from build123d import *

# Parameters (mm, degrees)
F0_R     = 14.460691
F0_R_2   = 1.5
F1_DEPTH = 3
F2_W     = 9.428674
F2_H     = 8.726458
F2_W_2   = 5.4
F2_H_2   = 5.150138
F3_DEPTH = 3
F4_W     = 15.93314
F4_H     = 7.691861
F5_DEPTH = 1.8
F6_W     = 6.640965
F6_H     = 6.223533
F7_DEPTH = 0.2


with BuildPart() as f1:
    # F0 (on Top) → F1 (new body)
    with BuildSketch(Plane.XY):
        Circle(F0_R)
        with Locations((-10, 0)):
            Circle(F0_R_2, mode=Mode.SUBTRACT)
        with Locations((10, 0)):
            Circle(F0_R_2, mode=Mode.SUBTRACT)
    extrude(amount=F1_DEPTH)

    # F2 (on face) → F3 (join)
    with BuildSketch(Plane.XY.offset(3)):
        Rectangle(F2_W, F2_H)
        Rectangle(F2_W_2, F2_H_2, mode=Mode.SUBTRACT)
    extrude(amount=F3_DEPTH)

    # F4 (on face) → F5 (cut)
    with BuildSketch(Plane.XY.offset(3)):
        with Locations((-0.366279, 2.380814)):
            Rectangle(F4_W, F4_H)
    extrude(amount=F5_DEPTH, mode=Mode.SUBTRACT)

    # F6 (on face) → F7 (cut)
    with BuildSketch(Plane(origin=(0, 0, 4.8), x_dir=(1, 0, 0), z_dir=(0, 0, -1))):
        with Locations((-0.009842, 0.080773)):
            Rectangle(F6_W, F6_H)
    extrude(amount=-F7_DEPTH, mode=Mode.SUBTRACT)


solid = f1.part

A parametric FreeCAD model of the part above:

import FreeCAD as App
import Part
import Sketcher

V = App.Vector
Q = App.Units.Quantity

doc = App.newDocument("Part")
params = doc.addObject("Spreadsheet::Sheet", "Params")
for row, (alias, value) in enumerate([
    ("sketch1_diameter", "3 mm"),
    ("pad1_length", "3 mm"),
    ("sketch2_width", "5.4 mm"),
    ("pad2_length", "3 mm"),
    ("pocket1_length", "1.8 mm"),
    ("pocket2_length", "0.2 mm"),
], start=1):
    params.set(f"A{row}", alias)
    params.set(f"B{row}", "=" + value)
    params.setAlias(f"B{row}", alias)

body = doc.addObject("PartDesign::Body", "Body")

# Sketch on XY plane
sketch1 = doc.addObject("Sketcher::SketchObject", "Sketch")
body.addObject(sketch1)
sketch1.AttachmentSupport = (doc.XY_Plane, [""])
sketch1.MapMode = "FlatFace"
sketch1.addGeometry([
    Part.Circle(V(0, 0, 0), V(0, 0, 1), 14.5),
    Part.Circle(V(-10, 0, 0), V(0, 0, 1), 1.5),
    Part.Circle(V(10, 0, 0), V(0, 0, 1), 1.5),
], False)
sketch1.addConstraint([
    Sketcher.Constraint("Coincident", 0, 3, -1, 1),
    Sketcher.Constraint("Equal", 1, 2),
    Sketcher.Constraint("Symmetric", 1, 3, 2, 3, -1, 1),
    Sketcher.Constraint("PointOnObject", 1, 3, -1),
    Sketcher.Constraint("Diameter", 1, Q("3 mm")),
    Sketcher.Constraint("DistanceX", 1, 3, -1, 1, Q("10 mm")),
    Sketcher.Constraint("Diameter", 0, Q("28.921382 mm")),
])
sketch1.setExpression("Constraints[4]", "Params.sketch1_diameter")
pad1 = doc.addObject("PartDesign::Pad", "Pad")
body.addObject(pad1)
pad1.Profile = sketch1
pad1.setExpression("Length", "Params.pad1_length")

# Sketch on XY plane
sketch2 = doc.addObject("Sketcher::SketchObject", "Sketch001")
body.addObject(sketch2)
sketch2.AttachmentSupport = (doc.XY_Plane, [""])
sketch2.MapMode = "FlatFace"
sketch2.AttachmentOffset = App.Placement(V(0, 0, 3), App.Rotation())
sketch2.addGeometry([
    Part.LineSegment(V(-5, 4, 0), V(-5, -4, 0)),  # 0
    Part.LineSegment(V(-5, -4, 0), V(5, -4, 0)),  # 1
    Part.LineSegment(V(5, -4, 0), V(5, 4, 0)),  # 2
    Part.LineSegment(V(5, 4, 0), V(-5, 4, 0)),  # 3
    Part.LineSegment(V(3, -3, 0), V(-3, -3, 0)),  # 4
    Part.LineSegment(V(-3, -3, 0), V(-3, 3, 0)),  # 5
    Part.LineSegment(V(-3, 3, 0), V(3, 3, 0)),  # 6
    Part.LineSegment(V(3, 3, 0), V(3, -3, 0)),  # 7
], False)
sketch2.addConstraint([
    Sketcher.Constraint("Coincident", 0, 2, 1, 1),
    Sketcher.Constraint("Coincident", 1, 2, 2, 1),
    Sketcher.Constraint("Coincident", 2, 2, 3, 1),
    Sketcher.Constraint("Coincident", 3, 2, 0, 1),
    Sketcher.Constraint("Coincident", 4, 2, 5, 1),
    Sketcher.Constraint("Coincident", 5, 2, 6, 1),
    Sketcher.Constraint("Coincident", 6, 2, 7, 1),
    Sketcher.Constraint("Coincident", 7, 2, 4, 1),
    Sketcher.Constraint("Vertical", 0),
    Sketcher.Constraint("Horizontal", 1),
    Sketcher.Constraint("Vertical", 2),
    Sketcher.Constraint("Horizontal", 3),
    Sketcher.Constraint("Horizontal", 4),
    Sketcher.Constraint("Vertical", 5),
    Sketcher.Constraint("Horizontal", 6),
    Sketcher.Constraint("Vertical", 7),
    Sketcher.Constraint("Symmetric", 0, 2, 2, 2, -1, 1),
    Sketcher.Constraint("Symmetric", 4, 2, 6, 2, -1, 1),
    Sketcher.Constraint("DistanceX", 4, 2, 4, 1, Q("5.4 mm")),
    Sketcher.Constraint("DistanceX", 1, 1, 1, 2, Q("9.428674 mm")),
    Sketcher.Constraint("DistanceY", 0, 2, 0, 1, Q("8.726458 mm")),
    Sketcher.Constraint("DistanceY", 5, 1, 5, 2, Q("5.150138 mm")),
])
sketch2.setExpression("Constraints[18]", "Params.sketch2_width")
pad2 = doc.addObject("PartDesign::Pad", "Pad001")
body.addObject(pad2)
pad2.Profile = sketch2
pad2.setExpression("Length", "Params.pad2_length")

# Sketch on XY plane
sketch3 = doc.addObject("Sketcher::SketchObject", "Sketch002")
body.addObject(sketch3)
sketch3.AttachmentSupport = (doc.XY_Plane, [""])
sketch3.MapMode = "FlatFace"
sketch3.AttachmentOffset = App.Placement(V(0, 0, 3), App.Rotation())
sketch3.addGeometry([
    Part.LineSegment(V(-8, 6, 0), V(-8, -1, 0)),
    Part.LineSegment(V(-8, -1, 0), V(8, -1, 0)),
    Part.LineSegment(V(8, -1, 0), V(8, 6, 0)),
    Part.LineSegment(V(8, 6, 0), V(-8, 6, 0)),
], False)
sketch3.addConstraint([
    Sketcher.Constraint("Coincident", 0, 2, 1, 1),
    Sketcher.Constraint("Coincident", 1, 2, 2, 1),
    Sketcher.Constraint("Coincident", 2, 2, 3, 1),
    Sketcher.Constraint("Coincident", 3, 2, 0, 1),
    Sketcher.Constraint("Vertical", 0),
    Sketcher.Constraint("Horizontal", 1),
    Sketcher.Constraint("Vertical", 2),
    Sketcher.Constraint("Horizontal", 3),
    Sketcher.Constraint("DistanceX", 1, 1, 1, 2, Q("15.93314 mm")),
    Sketcher.Constraint("DistanceY", 0, 2, 0, 1, Q("7.691861 mm")),
    Sketcher.Constraint("DistanceX", 0, 2, -1, 1, Q("8.332849 mm")),
    Sketcher.Constraint("DistanceY", 0, 2, -1, 1, Q("1.465116 mm")),
])
pocket1 = doc.addObject("PartDesign::Pocket", "Pocket")
body.addObject(pocket1)
pocket1.Profile = sketch3
pocket1.setExpression("Length", "Params.pocket1_length")
pocket1.Reversed = True

# Sketch on XY plane
sketch4 = doc.addObject("Sketcher::SketchObject", "Sketch003")
body.addObject(sketch4)
sketch4.AttachmentSupport = (doc.XY_Plane, [""])
sketch4.MapMode = "FlatFace"
sketch4.AttachmentOffset = App.Placement(V(0, 0, 4.8), App.Rotation())
sketch4.addGeometry([
    Part.LineSegment(V(-3, -3, 0), V(-3, 3, 0)),
    Part.LineSegment(V(-3, 3, 0), V(3, 3, 0)),
    Part.LineSegment(V(3, 3, 0), V(3, -3, 0)),
    Part.LineSegment(V(3, -3, 0), V(-3, -3, 0)),
], False)
sketch4.addConstraint([
    Sketcher.Constraint("Coincident", 0, 2, 1, 1),
    Sketcher.Constraint("Coincident", 1, 2, 2, 1),
    Sketcher.Constraint("Coincident", 2, 2, 3, 1),
    Sketcher.Constraint("Coincident", 3, 2, 0, 1),
    Sketcher.Constraint("Vertical", 0),
    Sketcher.Constraint("Horizontal", 1),
    Sketcher.Constraint("Vertical", 2),
    Sketcher.Constraint("Horizontal", 3),
    Sketcher.Constraint("DistanceX", 1, 1, 1, 2, Q("6.640965 mm")),
    Sketcher.Constraint("DistanceY", 0, 1, 0, 2, Q("6.223533 mm")),
    Sketcher.Constraint("DistanceX", -1, 1, 1, 2, Q("3.31064 mm")),
    Sketcher.Constraint("DistanceY", 2, 2, -1, 1, Q("3.19254 mm")),
])
pocket2 = doc.addObject("PartDesign::Pocket", "Pocket001")
body.addObject(pocket2)
pocket2.Profile = sketch4
pocket2.setExpression("Length", "Params.pocket2_length")
pocket2.Reversed = True

doc.recompute()
